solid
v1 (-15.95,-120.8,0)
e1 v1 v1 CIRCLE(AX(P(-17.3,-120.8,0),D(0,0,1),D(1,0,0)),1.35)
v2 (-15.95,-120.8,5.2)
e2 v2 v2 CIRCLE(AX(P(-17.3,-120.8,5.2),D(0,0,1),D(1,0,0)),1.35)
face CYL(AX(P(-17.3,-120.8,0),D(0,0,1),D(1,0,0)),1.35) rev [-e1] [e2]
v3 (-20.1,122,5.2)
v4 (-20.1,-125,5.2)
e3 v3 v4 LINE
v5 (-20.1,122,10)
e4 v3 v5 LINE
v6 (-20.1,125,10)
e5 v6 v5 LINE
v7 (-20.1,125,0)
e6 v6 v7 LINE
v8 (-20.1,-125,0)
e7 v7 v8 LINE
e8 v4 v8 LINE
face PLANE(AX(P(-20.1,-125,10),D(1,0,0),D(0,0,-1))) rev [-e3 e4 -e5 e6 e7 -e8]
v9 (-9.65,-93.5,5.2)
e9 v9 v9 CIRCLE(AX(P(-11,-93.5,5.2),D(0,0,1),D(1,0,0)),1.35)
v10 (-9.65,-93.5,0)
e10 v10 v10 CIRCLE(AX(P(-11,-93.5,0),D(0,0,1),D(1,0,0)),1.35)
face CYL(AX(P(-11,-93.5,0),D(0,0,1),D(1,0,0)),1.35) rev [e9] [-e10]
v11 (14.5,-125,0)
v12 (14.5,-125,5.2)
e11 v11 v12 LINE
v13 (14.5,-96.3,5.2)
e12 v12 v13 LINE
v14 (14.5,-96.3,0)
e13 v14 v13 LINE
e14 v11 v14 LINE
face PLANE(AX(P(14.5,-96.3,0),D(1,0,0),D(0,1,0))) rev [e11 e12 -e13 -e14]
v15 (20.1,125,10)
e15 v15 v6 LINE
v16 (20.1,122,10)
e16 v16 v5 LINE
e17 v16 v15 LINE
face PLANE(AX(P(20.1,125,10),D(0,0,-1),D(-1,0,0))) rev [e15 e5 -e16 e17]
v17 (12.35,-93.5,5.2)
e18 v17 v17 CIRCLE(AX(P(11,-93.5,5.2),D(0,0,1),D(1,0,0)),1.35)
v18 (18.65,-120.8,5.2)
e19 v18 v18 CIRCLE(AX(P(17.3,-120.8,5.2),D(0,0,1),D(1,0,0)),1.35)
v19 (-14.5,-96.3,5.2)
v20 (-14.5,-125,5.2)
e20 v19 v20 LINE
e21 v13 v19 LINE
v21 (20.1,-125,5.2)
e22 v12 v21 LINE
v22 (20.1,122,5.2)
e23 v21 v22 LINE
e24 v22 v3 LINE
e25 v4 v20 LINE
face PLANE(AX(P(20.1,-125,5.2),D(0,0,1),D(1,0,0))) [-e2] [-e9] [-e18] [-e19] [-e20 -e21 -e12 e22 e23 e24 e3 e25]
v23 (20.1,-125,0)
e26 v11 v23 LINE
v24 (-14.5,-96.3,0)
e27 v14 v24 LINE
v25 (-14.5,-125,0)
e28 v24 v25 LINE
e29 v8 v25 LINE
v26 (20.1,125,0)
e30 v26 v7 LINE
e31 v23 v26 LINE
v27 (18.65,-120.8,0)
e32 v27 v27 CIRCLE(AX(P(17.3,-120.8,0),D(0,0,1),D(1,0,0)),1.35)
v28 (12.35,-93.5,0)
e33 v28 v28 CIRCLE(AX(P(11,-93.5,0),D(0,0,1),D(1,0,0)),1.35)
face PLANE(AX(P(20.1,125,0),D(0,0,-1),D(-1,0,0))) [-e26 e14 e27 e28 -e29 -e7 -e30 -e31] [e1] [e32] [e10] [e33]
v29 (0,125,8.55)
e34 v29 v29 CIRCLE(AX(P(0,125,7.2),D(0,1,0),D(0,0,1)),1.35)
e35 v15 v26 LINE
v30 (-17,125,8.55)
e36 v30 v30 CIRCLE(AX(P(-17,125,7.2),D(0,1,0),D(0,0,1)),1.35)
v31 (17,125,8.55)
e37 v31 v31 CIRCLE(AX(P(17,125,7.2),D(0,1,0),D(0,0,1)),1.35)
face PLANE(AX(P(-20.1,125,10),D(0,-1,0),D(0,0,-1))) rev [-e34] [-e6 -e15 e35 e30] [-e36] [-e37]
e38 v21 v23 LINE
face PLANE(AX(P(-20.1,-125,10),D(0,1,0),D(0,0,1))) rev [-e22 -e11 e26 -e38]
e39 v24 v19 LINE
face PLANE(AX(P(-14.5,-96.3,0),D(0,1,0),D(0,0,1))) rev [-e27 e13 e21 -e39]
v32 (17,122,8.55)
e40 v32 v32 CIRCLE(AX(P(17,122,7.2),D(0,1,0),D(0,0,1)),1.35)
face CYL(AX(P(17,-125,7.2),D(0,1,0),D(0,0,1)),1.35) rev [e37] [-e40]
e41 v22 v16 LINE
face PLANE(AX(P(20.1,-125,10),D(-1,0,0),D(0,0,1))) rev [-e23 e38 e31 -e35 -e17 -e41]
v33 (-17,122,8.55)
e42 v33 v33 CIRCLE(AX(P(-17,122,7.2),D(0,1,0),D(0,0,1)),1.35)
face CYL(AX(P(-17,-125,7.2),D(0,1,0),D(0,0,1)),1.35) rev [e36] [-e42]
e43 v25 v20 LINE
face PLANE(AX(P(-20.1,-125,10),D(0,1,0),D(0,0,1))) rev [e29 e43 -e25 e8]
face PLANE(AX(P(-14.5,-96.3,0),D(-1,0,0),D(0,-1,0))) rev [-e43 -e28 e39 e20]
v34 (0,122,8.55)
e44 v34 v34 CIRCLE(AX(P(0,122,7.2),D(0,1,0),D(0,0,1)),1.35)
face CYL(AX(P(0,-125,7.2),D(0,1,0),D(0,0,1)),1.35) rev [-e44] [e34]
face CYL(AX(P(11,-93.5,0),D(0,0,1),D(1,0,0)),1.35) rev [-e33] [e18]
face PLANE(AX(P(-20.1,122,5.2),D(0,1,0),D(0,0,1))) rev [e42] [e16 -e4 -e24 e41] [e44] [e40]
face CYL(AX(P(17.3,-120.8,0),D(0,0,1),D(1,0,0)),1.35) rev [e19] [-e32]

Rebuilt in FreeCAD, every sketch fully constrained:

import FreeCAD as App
import Part
import Sketcher
Q = App.Units.Quantity

doc = App.newDocument("Part")
body = doc.addObject("PartDesign::Body", "Body")

# Sketch on XY plane
sketch1 = body.newObject("Sketcher::SketchObject", "Sketch")
sketch1.AttachmentSupport = (doc.getObject("XY_Plane"), [""])
sketch1.MapMode = "FlatFace"
sketch1.addGeometry([
    Part.LineSegment(App.Vector(-20.1, 125, 0), App.Vector(-20.1, -125, 0)),
    Part.LineSegment(App.Vector(-20.1, -125, 0), App.Vector(20.1, -125, 0)),
    Part.LineSegment(App.Vector(20.1, -125, 0), App.Vector(20.1, 125, 0)),
    Part.LineSegment(App.Vector(20.1, 125, 0), App.Vector(-20.1, 125, 0)),
], False)
sketch1.addConstraint([
    Sketcher.Constraint("Coincident", 0, 2, 1, 1),
    Sketcher.Constraint("Coincident", 1, 2, 2, 1),
    Sketcher.Constraint("Coincident", 2, 2, 3, 1),
    Sketcher.Constraint("Coincident", 3, 2, 0, 1),
    Sketcher.Constraint("Vertical", 0),
    Sketcher.Constraint("Horizontal", 1),
    Sketcher.Constraint("Vertical", 2),
    Sketcher.Constraint("Horizontal", 3),
    Sketcher.Constraint("Symmetric", 0, 2, 2, 2, -1, 1),
    Sketcher.Constraint("DistanceY", 0, 2, 0, 1, Q("250 mm")),
    Sketcher.Constraint("DistanceX", 1, 1, 1, 2, Q("40.2 mm")),
])
pad1 = body.newObject("PartDesign::Pad", "Pad")
pad1.Profile = sketch1
pad1.Length = 10

# Sketch on XY plane
sketch2 = body.newObject("Sketcher::SketchObject", "Sketch001")
sketch2.AttachmentSupport = (doc.getObject("XY_Plane"), [""])
sketch2.MapMode = "FlatFace"
sketch2.AttachmentOffset = App.Placement(App.Vector(0, 0, 10), App.Rotation())
sketch2.addGeometry([
    Part.LineSegment(App.Vector(-20.1, 122, 0), App.Vector(-20.1, -125, 0)),
    Part.LineSegment(App.Vector(-20.1, -125, 0), App.Vector(20.1, -125, 0)),
    Part.LineSegment(App.Vector(20.1, -125, 0), App.Vector(20.1, 122, 0)),
    Part.LineSegment(App.Vector(20.1, 122, 0), App.Vector(-20.1, 122, 0)),
], False)
sketch2.addConstraint([
    Sketcher.Constraint("Coincident", 0, 2, 1, 1),
    Sketcher.Constraint("Coincident", 1, 2, 2, 1),
    Sketcher.Constraint("Coincident", 2, 2, 3, 1),
    Sketcher.Constraint("Coincident", 3, 2, 0, 1),
    Sketcher.Constraint("Vertical", 0),
    Sketcher.Constraint("Horizontal", 1),
    Sketcher.Constraint("Vertical", 2),
    Sketcher.Constraint("Horizontal", 3),
    Sketcher.Constraint("DistanceY", 0, 2, 0, 1, Q("247 mm")),
    Sketcher.Constraint("DistanceX", 1, 1, 1, 2, Q("40.2 mm")),
    Sketcher.Constraint("DistanceY", 0, 2, -1, 1, Q("125 mm")),
    Sketcher.Constraint("DistanceX", 0, 2, -1, 1, Q("20.1 mm")),
])
pocket1 = body.newObject("PartDesign::Pocket", "Pocket")
pocket1.Profile = sketch2
pocket1.Length = 4.8

# Sketch on XY plane
sketch3 = body.newObject("Sketcher::SketchObject", "Sketch002")
sketch3.AttachmentSupport = (doc.getObject("XY_Plane"), [""])
sketch3.MapMode = "FlatFace"
sketch3.AttachmentOffset = App.Placement(App.Vector(0, 0, 10), App.Rotation())
sketch3.addGeometry([
    Part.LineSegment(App.Vector(-14.5, -96.3, 0), App.Vector(-14.5, -125, 0)),
    Part.LineSegment(App.Vector(-14.5, -125, 0), App.Vector(14.5, -125, 0)),
    Part.LineSegment(App.Vector(14.5, -125, 0), App.Vector(14.5, -96.3, 0)),
    Part.LineSegment(App.Vector(14.5, -96.3, 0), App.Vector(-14.5, -96.3, 0)),
], False)
sketch3.addConstraint([
    Sketcher.Constraint("Coincident", 0, 2, 1, 1),
    Sketcher.Constraint("Coincident", 1, 2, 2, 1),
    Sketcher.Constraint("Coincident", 2, 2, 3, 1),
    Sketcher.Constraint("Coincident", 3, 2, 0, 1),
    Sketcher.Constraint("Vertical", 0),
    Sketcher.Constraint("Horizontal", 1),
    Sketcher.Constraint("Vertical", 2),
    Sketcher.Constraint("Horizontal", 3),
    Sketcher.Constraint("DistanceX", 1, 1, 1, 2, Q("29 mm")),
    Sketcher.Constraint("DistanceY", 0, 2, 0, 1, Q("28.7 mm")),
    Sketcher.Constraint("DistanceY", 0, 2, -1, 1, Q("125 mm")),
    Sketcher.Constraint("DistanceX", 0, 2, -1, 1, Q("14.5 mm")),
])
pocket2 = body.newObject("PartDesign::Pocket", "Pocket001")
pocket2.Profile = sketch3
pocket2.Type = "ThroughAll"

# Sketch on XY plane
sketch4 = body.newObject("Sketcher::SketchObject", "Sketch003")
sketch4.AttachmentSupport = (doc.getObject("XY_Plane"), [""])
sketch4.MapMode = "FlatFace"
sketch4.AttachmentOffset = App.Placement(App.Vector(0, 0, 10), App.Rotation())
sketch4.addGeometry([
    Part.Circle(App.Vector(17.3, -120.8, 0), App.Vector(0, 0, 1), 1.35),
    Part.Circle(App.Vector(11, -93.5, 0), App.Vector(0, 0, 1), 1.35),
    Part.Circle(App.Vector(-17.3, -120.8, 0), App.Vector(0, 0, 1), 1.35),
    Part.Circle(App.Vector(-11, -93.5, 0), App.Vector(0, 0, 1), 1.35),
], False)
sketch4.addConstraint([
    Sketcher.Constraint("Equal", 0, 1),
    Sketcher.Constraint("Equal", 1, 2),
    Sketcher.Constraint("Equal", 2, 3),
    Sketcher.Constraint("Symmetric", 0, 3, 2, 3, -2),
    Sketcher.Constraint("Symmetric", 1, 3, 3, 3, -2),
    Sketcher.Constraint("Diameter", 0, Q("2.7 mm")),
    Sketcher.Constraint("DistanceX", -1, 1, 1, 3, Q("11 mm")),
    Sketcher.Constraint("DistanceX", -1, 1, 0, 3, Q("17.3 mm")),
    Sketcher.Constraint("DistanceY", 0, 3, -1, 1, Q("120.8 mm")),
    Sketcher.Constraint("DistanceY", 1, 3, -1, 1, Q("93.5 mm")),
])
pocket3 = body.newObject("PartDesign::Pocket", "Pocket002")
pocket3.Profile = sketch4
pocket3.Type = "ThroughAll"

# Sketch on XZ plane
sketch5 = body.newObject("Sketcher::SketchObject", "Sketch004")
sketch5.AttachmentSupport = (doc.getObject("XZ_Plane"), [""])
sketch5.MapMode = "FlatFace"
sketch5.AttachmentOffset = App.Placement(App.Vector(0, 0, -125), App.Rotation())
sketch5.addGeometry([
    Part.Circle(App.Vector(17, 7.2, 0), App.Vector(0, 0, 1), 1.35),
    Part.Circle(App.Vector(-17, 7.2, 0), App.Vector(0, 0, 1), 1.35),
    Part.Circle(App.Vector(0, 7.2, 0), App.Vector(0, 0, 1), 1.35),
], False)
sketch5.addConstraint([
    Sketcher.Constraint("Equal", 0, 1),
    Sketcher.Constraint("Equal", 1, 2),
    Sketcher.Constraint("Symmetric", 0, 3, 1, 3, -2),
    Sketcher.Constraint("PointOnObject", 2, 3, -2),
    Sketcher.Constraint("Horizontal", 1, 3, 2, 3),
    Sketcher.Constraint("Diameter", 0, Q("2.7 mm")),
    Sketcher.Constraint("DistanceX", -1, 1, 0, 3, Q("17 mm")),
    Sketcher.Constraint("DistanceY", -1, 1, 0, 3, Q("7.2 mm")),
])
pocket4 = body.newObject("PartDesign::Pocket", "Pocket003")
pocket4.Profile = sketch5
pocket4.Type = "ThroughAll"
pocket4.Reversed = True

doc.recompute()
